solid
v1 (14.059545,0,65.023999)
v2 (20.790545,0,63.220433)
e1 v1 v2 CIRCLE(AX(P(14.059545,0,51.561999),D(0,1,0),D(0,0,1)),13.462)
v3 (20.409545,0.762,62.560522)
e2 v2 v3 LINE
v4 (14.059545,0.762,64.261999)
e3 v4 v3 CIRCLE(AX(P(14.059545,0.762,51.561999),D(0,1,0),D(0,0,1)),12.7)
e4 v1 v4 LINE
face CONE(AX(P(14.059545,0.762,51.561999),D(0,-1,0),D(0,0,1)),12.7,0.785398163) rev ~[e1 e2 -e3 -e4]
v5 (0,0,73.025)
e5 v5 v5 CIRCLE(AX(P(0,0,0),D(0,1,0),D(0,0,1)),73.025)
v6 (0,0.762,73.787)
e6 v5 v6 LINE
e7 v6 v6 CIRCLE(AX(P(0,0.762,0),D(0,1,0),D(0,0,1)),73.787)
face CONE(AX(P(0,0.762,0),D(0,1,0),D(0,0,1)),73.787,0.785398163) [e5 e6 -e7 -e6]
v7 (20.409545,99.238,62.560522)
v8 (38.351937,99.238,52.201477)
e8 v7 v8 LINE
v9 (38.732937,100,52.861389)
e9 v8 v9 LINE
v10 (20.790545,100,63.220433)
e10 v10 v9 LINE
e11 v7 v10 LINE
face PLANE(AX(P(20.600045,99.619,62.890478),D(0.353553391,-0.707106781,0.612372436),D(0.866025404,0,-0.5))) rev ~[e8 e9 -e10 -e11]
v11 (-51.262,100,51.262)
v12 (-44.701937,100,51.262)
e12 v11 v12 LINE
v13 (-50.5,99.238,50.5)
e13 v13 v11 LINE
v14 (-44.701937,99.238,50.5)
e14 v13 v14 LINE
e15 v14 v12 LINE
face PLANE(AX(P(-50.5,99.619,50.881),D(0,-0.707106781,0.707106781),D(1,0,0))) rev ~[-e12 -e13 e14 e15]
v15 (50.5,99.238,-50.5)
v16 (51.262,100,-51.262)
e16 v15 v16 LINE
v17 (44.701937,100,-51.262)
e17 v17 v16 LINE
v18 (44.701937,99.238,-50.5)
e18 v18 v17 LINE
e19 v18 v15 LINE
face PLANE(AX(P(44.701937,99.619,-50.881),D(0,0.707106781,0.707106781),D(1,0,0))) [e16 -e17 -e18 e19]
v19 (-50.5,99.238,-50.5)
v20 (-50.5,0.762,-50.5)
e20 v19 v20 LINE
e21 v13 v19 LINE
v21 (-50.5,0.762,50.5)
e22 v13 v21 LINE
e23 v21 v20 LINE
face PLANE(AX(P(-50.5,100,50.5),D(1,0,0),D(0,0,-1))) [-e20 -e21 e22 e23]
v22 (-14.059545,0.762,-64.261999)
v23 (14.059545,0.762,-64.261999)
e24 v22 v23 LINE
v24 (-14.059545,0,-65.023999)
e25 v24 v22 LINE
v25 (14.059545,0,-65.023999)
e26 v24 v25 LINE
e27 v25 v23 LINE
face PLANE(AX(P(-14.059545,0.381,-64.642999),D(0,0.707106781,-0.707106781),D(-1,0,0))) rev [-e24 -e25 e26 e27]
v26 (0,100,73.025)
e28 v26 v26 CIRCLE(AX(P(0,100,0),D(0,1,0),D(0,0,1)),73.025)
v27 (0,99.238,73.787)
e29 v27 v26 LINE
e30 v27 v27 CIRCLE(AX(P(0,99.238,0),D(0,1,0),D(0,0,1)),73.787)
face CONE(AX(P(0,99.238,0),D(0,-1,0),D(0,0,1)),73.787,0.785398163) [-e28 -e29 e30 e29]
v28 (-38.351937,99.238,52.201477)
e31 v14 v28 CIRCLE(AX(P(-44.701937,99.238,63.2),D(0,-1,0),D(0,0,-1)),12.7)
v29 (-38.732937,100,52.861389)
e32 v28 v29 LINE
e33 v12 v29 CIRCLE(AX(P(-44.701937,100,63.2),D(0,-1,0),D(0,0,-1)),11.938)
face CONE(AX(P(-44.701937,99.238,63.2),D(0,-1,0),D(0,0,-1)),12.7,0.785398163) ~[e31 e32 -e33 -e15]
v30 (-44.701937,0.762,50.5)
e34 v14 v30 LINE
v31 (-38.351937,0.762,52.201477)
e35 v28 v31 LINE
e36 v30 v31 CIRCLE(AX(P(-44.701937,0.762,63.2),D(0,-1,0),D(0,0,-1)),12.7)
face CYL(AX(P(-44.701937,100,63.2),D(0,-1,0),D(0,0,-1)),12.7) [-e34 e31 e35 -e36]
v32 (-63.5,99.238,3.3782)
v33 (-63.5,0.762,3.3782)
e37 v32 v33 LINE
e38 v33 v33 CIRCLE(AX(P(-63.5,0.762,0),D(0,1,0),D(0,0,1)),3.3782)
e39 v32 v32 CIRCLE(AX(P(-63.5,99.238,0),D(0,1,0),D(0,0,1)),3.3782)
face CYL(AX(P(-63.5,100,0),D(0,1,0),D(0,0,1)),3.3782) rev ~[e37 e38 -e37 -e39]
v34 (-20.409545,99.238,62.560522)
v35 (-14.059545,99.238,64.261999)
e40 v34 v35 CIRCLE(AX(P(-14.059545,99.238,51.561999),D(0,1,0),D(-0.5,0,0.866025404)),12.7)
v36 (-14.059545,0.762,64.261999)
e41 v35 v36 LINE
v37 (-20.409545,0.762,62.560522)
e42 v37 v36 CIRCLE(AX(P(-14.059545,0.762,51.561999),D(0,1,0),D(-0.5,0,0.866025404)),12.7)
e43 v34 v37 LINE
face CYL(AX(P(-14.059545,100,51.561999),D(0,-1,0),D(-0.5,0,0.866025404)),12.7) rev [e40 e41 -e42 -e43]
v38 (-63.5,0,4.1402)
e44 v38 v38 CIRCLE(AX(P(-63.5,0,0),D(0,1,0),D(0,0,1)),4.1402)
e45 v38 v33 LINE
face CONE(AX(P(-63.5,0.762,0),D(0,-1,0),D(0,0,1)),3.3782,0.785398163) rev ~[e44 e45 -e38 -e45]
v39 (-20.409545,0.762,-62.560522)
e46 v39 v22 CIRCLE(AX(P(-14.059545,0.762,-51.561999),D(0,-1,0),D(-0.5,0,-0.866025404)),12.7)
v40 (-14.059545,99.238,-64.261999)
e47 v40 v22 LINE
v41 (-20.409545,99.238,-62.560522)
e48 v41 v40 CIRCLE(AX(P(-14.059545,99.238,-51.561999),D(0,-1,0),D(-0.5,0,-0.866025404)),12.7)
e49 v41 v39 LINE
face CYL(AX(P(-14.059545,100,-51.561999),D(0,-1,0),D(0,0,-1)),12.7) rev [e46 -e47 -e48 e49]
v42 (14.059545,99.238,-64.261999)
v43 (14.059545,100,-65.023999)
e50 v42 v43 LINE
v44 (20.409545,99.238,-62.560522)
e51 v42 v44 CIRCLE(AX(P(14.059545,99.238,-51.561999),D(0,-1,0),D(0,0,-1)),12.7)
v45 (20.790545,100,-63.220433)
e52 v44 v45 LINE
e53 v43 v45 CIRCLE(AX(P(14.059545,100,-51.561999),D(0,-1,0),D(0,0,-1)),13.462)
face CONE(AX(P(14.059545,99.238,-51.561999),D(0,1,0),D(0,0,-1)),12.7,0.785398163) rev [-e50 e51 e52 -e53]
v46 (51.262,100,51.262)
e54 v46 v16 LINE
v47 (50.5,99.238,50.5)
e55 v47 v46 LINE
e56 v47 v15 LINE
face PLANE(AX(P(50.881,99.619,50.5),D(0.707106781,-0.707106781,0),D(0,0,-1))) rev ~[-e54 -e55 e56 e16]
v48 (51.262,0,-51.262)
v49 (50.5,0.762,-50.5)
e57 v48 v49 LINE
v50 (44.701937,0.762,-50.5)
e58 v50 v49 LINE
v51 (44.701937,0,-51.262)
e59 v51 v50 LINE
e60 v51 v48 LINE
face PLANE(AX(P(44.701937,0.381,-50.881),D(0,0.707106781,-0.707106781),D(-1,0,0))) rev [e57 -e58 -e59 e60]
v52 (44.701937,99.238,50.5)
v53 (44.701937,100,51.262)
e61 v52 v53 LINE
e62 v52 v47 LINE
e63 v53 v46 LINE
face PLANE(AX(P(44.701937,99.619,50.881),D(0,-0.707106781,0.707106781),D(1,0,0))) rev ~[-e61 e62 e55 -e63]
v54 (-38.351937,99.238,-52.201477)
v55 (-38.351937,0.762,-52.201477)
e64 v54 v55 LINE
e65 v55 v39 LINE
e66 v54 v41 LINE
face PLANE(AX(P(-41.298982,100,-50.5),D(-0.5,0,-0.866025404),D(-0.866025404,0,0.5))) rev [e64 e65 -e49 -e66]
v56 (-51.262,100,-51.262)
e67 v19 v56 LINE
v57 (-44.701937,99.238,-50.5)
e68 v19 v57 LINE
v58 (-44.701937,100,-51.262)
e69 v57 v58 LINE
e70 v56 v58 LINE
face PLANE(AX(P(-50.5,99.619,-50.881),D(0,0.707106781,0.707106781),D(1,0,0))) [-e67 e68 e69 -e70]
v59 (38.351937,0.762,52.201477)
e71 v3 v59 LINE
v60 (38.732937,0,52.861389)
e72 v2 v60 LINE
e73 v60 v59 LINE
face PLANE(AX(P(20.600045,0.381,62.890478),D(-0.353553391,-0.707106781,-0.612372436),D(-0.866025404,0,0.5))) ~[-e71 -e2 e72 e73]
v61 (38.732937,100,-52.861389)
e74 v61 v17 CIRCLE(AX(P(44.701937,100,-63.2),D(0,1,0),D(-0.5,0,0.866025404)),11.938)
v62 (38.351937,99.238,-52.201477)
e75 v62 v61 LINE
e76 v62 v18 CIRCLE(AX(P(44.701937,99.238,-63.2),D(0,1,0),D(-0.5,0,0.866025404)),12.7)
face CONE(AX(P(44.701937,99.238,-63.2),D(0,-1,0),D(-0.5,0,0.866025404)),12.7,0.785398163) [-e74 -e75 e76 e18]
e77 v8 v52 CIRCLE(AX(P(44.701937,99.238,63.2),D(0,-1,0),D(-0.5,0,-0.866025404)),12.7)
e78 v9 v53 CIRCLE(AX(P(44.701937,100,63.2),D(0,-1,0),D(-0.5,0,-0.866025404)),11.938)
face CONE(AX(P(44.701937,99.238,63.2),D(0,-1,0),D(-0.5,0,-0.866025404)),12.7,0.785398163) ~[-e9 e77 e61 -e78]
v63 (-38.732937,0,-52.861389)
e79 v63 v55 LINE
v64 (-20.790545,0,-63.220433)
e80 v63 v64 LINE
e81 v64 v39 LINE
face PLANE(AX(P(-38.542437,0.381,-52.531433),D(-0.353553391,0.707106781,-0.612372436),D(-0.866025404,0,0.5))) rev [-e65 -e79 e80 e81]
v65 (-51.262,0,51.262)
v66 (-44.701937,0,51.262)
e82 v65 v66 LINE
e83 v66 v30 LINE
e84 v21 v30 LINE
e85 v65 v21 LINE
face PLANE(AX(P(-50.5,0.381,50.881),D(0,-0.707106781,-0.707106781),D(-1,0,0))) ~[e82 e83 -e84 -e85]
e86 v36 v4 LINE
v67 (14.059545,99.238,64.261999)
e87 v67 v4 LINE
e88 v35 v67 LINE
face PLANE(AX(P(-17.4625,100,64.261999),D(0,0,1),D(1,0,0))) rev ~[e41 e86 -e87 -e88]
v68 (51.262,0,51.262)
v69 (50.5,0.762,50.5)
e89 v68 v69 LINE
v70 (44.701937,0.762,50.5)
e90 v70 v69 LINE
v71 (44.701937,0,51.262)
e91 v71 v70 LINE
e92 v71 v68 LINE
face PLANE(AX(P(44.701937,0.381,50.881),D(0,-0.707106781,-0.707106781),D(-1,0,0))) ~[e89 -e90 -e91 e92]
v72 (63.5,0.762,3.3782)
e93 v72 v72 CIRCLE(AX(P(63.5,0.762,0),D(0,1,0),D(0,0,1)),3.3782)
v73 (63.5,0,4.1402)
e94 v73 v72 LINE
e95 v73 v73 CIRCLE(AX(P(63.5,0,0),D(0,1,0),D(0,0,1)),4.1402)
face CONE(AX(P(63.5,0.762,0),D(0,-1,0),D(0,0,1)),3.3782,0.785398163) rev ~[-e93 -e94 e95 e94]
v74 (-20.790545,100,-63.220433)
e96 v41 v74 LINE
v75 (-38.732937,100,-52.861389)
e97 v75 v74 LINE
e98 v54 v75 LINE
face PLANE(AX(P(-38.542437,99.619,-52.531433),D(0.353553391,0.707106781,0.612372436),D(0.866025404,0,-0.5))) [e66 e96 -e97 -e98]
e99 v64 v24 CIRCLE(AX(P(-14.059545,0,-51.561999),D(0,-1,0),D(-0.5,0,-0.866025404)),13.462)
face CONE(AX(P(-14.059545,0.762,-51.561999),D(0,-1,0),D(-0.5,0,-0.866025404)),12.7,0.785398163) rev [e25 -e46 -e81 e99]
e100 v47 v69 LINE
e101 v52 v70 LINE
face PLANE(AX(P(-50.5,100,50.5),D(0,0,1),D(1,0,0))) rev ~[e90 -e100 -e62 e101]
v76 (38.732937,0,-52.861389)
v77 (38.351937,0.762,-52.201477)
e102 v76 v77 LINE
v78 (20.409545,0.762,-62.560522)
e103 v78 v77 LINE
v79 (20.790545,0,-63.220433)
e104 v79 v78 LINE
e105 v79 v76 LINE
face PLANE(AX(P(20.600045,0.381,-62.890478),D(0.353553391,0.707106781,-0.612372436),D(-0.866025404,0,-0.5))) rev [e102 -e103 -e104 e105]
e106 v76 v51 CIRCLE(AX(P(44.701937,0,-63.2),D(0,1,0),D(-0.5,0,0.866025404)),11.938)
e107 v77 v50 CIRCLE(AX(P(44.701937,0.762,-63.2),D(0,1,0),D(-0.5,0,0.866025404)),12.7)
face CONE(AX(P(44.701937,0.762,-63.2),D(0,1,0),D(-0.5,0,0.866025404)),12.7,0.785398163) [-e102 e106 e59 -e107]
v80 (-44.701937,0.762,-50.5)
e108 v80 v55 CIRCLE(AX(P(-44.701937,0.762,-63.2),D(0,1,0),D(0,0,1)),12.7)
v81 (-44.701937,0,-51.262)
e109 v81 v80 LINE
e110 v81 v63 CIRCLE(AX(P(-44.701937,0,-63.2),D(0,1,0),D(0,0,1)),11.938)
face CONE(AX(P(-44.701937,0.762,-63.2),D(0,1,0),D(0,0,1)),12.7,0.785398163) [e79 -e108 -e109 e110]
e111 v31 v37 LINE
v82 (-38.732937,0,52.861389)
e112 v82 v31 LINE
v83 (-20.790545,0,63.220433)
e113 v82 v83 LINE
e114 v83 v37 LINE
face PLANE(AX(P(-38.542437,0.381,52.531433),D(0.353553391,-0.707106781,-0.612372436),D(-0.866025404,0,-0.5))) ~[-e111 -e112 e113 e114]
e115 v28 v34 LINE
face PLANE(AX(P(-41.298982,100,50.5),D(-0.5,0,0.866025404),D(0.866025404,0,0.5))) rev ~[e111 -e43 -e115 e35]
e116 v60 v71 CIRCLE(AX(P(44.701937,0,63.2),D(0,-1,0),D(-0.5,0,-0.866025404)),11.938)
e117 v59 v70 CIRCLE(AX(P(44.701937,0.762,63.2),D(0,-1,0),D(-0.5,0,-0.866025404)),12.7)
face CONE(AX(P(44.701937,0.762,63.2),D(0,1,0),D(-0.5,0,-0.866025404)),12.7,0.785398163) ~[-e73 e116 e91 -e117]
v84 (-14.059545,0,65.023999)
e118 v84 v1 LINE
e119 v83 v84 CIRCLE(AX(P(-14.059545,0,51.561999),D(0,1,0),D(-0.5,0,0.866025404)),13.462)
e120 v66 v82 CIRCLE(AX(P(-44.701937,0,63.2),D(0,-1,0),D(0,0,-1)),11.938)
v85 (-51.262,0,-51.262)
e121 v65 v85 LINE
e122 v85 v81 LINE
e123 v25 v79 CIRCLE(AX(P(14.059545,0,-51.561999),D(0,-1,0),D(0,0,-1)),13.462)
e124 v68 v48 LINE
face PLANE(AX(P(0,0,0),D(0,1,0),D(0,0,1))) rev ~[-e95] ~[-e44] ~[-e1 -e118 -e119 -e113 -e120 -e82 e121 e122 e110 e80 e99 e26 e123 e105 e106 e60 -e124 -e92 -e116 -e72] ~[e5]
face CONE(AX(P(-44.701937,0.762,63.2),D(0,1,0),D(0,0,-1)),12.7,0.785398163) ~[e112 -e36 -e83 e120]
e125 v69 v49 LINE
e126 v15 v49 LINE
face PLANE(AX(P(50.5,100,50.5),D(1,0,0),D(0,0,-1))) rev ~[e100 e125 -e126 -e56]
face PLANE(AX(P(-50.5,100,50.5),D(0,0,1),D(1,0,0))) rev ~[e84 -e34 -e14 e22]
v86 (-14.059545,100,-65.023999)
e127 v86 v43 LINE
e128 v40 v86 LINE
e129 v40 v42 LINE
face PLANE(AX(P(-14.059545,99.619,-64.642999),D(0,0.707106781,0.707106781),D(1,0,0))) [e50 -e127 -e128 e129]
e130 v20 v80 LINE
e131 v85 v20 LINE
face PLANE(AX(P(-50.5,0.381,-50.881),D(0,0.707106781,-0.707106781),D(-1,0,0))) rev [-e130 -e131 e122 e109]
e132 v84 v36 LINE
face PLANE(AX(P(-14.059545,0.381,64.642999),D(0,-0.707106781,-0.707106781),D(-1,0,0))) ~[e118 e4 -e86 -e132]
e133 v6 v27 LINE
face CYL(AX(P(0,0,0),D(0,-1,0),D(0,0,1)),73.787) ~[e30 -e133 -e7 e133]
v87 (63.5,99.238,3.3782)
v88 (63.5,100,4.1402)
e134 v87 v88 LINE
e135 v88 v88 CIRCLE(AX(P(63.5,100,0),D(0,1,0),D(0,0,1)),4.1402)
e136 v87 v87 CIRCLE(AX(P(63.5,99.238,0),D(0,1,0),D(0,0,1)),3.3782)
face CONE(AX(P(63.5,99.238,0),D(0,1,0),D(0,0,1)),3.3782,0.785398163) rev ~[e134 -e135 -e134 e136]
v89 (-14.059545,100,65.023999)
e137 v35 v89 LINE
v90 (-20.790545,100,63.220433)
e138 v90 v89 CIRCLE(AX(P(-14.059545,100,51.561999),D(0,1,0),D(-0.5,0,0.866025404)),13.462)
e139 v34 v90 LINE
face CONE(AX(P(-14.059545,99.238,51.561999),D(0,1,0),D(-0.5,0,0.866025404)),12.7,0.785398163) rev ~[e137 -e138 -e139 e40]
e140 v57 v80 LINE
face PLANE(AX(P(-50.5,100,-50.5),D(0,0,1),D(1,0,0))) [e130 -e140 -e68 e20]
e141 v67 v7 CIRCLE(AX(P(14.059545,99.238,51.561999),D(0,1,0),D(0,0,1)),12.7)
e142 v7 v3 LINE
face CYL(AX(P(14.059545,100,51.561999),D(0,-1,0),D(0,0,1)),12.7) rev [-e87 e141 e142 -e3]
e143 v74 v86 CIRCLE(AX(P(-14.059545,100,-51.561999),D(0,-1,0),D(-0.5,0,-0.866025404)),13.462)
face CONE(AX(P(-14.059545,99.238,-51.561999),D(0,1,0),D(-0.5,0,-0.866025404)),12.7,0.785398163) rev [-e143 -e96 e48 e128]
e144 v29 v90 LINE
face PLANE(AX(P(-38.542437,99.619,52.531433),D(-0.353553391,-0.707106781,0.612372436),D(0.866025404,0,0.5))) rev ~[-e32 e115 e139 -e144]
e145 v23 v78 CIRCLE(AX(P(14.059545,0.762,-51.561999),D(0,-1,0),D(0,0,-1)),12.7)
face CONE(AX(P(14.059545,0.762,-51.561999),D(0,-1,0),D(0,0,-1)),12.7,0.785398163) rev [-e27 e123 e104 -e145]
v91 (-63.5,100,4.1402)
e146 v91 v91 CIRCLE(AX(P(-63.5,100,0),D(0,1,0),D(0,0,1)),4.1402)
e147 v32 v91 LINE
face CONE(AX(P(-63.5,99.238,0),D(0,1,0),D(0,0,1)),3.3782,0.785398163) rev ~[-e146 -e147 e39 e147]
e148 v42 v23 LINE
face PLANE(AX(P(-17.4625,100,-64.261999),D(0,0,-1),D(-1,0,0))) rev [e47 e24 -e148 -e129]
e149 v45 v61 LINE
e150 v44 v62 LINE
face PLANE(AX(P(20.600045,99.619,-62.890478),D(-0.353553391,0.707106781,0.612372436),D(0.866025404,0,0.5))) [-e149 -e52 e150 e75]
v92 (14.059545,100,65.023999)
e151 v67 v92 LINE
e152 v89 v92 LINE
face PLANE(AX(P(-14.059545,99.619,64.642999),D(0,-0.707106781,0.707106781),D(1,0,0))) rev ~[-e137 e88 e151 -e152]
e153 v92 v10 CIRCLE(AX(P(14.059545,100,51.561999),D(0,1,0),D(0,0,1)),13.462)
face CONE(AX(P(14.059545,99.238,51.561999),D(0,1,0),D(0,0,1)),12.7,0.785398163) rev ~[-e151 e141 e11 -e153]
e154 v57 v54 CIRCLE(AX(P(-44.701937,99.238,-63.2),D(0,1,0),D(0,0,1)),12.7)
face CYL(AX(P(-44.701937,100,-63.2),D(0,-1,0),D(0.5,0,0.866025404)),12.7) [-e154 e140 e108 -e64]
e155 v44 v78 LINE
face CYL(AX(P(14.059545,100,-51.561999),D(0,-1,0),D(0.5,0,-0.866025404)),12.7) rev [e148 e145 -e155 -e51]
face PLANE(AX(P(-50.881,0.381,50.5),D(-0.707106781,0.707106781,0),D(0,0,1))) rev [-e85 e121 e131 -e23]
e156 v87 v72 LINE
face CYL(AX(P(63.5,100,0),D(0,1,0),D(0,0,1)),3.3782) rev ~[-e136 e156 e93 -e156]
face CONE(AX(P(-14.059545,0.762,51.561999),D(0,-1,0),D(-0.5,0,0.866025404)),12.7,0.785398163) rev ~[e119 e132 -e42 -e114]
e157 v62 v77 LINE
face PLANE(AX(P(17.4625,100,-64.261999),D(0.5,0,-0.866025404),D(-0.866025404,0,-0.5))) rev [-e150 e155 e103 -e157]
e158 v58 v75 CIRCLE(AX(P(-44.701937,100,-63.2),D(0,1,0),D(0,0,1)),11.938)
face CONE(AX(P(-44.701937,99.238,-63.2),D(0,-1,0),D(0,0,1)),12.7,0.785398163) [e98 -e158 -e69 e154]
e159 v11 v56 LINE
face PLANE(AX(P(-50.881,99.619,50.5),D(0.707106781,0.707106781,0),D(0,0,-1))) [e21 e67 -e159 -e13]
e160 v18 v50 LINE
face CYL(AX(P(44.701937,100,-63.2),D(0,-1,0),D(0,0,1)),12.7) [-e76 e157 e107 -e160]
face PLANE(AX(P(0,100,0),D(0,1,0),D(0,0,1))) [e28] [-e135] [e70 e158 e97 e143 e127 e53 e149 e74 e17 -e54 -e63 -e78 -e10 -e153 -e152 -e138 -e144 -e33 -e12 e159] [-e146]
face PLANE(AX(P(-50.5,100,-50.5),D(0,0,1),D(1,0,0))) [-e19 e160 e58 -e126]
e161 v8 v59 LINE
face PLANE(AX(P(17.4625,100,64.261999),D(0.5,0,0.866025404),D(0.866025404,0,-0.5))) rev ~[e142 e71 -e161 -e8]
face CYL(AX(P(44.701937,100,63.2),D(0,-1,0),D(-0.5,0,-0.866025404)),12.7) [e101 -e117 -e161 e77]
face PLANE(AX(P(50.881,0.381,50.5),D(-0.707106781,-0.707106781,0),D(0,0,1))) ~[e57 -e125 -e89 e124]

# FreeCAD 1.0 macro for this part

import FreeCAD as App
import Part
import Sketcher
from FreeCAD import Vector
Q = App.Units.Quantity


def edges_at(feature, points):
    """Names of the edges that pass closest to the given points."""
    edges = feature.Shape.Edges
    near = lambda p: min(range(len(edges)), key=lambda i: edges[i].distToShape(Part.Vertex(*p))[0])
    return sorted({f"Edge{near(p) + 1}" for p in points})

doc = App.newDocument("Part")
body = doc.addObject("PartDesign::Body", "Body")

sketch1 = body.newObject("Sketcher::SketchObject", "Sketch")
sketch1.AttachmentSupport = (doc.getObject("XZ_Plane"), [""])
sketch1.MapMode = "FlatFace"
sketch1.addGeometry(Part.Circle(Vector(0, 0, 0), Vector(0, 0, 1), 73.787), False)
sketch1.addConstraint(Sketcher.Constraint("Coincident", 0, 3, -1, 1))
sketch1.addConstraint(Sketcher.Constraint("Diameter", 0, Q("5.81 in")))
pad1 = body.newObject("PartDesign::Pad", "Pad")
pad1.Profile = sketch1
pad1.Length = 100
pad1.Reversed = True

sketch2 = body.newObject("Sketcher::SketchObject", "Sketch001")
sketch2.AttachmentSupport = (doc.getObject("XZ_Plane"), [""])
sketch2.MapMode = "FlatFace"
sketch2.AttachmentOffset = App.Placement(Vector(0, 0, -100), App.Rotation())
sketch2.addGeometry(Part.LineSegment(Vector(-50.5, -50.5, 0), Vector(-50.5, 50.5, 0)), False)
sketch2.addGeometry(Part.LineSegment(Vector(-50.5, 50.5, 0), Vector(50.5, 50.5, 0)), False)
sketch2.addGeometry(Part.LineSegment(Vector(50.5, 50.5, 0), Vector(50.5, -50.5, 0)), False)
sketch2.addGeometry(Part.LineSegment(Vector(50.5, -50.5, 0), Vector(-50.5, -50.5, 0)), False)
sketch2.addConstraint(Sketcher.Constraint("Coincident", 0, 2, 1, 1))
sketch2.addConstraint(Sketcher.Constraint("Coincident", 1, 2, 2, 1))
sketch2.addConstraint(Sketcher.Constraint("Coincident", 2, 2, 3, 1))
sketch2.addConstraint(Sketcher.Constraint("Coincident", 3, 2, 0, 1))
sketch2.addConstraint(Sketcher.Constraint("Vertical", 0))
sketch2.addConstraint(Sketcher.Constraint("Horizontal", 1))
sketch2.addConstraint(Sketcher.Constraint("Vertical", 2))
sketch2.addConstraint(Sketcher.Constraint("Horizontal", 3))
sketch2.addConstraint(Sketcher.Constraint("Symmetric", 0, 2, 2, 2, -1, 1))
sketch2.addConstraint(Sketcher.Constraint("Equal", 3, 0))
sketch2.addConstraint(Sketcher.Constraint("DistanceX", 1, 1, 1, 2, 101.0))
pocket1 = body.newObject("PartDesign::Pocket", "Pocket")
pocket1.Profile = sketch2
pocket1.Type = "ThroughAll"
pocket1.Reversed = True

sketch3 = body.newObject("Sketcher::SketchObject", "Sketch002")
sketch3.AttachmentSupport = (doc.getObject("XZ_Plane"), [""])
sketch3.MapMode = "FlatFace"
sketch3.AttachmentOffset = App.Placement(Vector(0, 0, -100), App.Rotation())
sketch3.addGeometry(Part.LineSegment(Vector(-17.4625, 64.261999, 0), Vector(17.4625, 64.261999, 0)), False)
sketch3.addGeometry(Part.LineSegment(Vector(17.4625, 64.261999, 0), Vector(41.298982, 50.5, 0)), False)
sketch3.addGeometry(Part.LineSegment(Vector(41.298982, 50.5, 0), Vector(-41.298982, 50.5, 0)), False)
sketch3.addGeometry(Part.LineSegment(Vector(-41.298982, 50.5, 0), Vector(-17.4625, 64.261999, 0)), False)
sketch3.addConstraint(Sketcher.Constraint("Coincident", 0, 2, 1, 1))
sketch3.addConstraint(Sketcher.Constraint("Coincident", 1, 2, 2, 1))
sketch3.addConstraint(Sketcher.Constraint("Coincident", 2, 2, 3, 1))
sketch3.addConstraint(Sketcher.Constraint("Coincident", 3, 2, 0, 1))
sketch3.addConstraint(Sketcher.Constraint("Horizontal", 0))
sketch3.addConstraint(Sketcher.Constraint("Horizontal", 2))
sketch3.addConstraint(Sketcher.Constraint("Equal", 1, 3))
sketch3.addConstraint(Sketcher.Constraint("Angle", 1, Q("-30 deg")))
sketch3.addConstraint(Sketcher.Constraint("DistanceX", 0, 1, 0, 2, Q("1.375 in")))
sketch3.addConstraint(Sketcher.Constraint("DistanceY", -1, 1, 0, 2, Q("2.53 in")))
sketch3.addConstraint(Sketcher.Constraint("DistanceX", -1, 1, 0, 2, Q("0.6875 in")))
sketch3.addConstraint(Sketcher.Constraint("Distance", 1, 27.523999))
pocket2 = body.newObject("PartDesign::Pocket", "Pocket001")
pocket2.Profile = sketch3
pocket2.Type = "ThroughAll"
pocket2.Reversed = True
doc.recompute()

mirrored = body.newObject("PartDesign::Mirrored", "Mirrored")
mirrored.Originals = [pocket2]
mirrored.MirrorPlane = (doc.getObject("XY_Plane"), [""])
body.Tip = mirrored
doc.recompute()

fillet = body.newObject("PartDesign::Fillet", "Fillet")
fillet.Base = (mirrored, edges_at(mirrored, [
    (-17.462, 50, 64.262),
    (-41.299, 50, 50.5),
    (41.299, 50, 50.5),
    (17.462, 50, 64.262),
    (-41.299, 50, -50.5),
    (-17.462, 50, -64.262),
    (17.462, 50, -64.262),
    (41.299, 50, -50.5),
]))
fillet.Radius = Q("0.5 in")

sketch4 = body.newObject("Sketcher::SketchObject", "Sketch003")
sketch4.AttachmentSupport = (doc.getObject("XZ_Plane"), [""])
sketch4.MapMode = "FlatFace"
sketch4.AttachmentOffset = App.Placement(Vector(0, 0, -100), App.Rotation())
sketch4.addGeometry(Part.Circle(Vector(-63.5, 0, 0), Vector(0, 0, 1), 3.3782), False)
sketch4.addGeometry(Part.Circle(Vector(63.5, 0, 0), Vector(0, 0, 1), 3.3782), False)
sketch4.addConstraint(Sketcher.Constraint("Equal", 0, 1))
sketch4.addConstraint(Sketcher.Constraint("Symmetric", 0, 3, 1, 3, -1, 1))
sketch4.addConstraint(Sketcher.Constraint("PointOnObject", 0, 3, -1))
sketch4.addConstraint(Sketcher.Constraint("Diameter", 0, Q("0.266 in")))
sketch4.addConstraint(Sketcher.Constraint("DistanceX", 0, 3, 1, 3, Q("5 in")))
pocket3 = body.newObject("PartDesign::Pocket", "Pocket002")
pocket3.Profile = sketch4
pocket3.Type = "ThroughAll"
pocket3.Reversed = True
doc.recompute()

chamfer = body.newObject("PartDesign::Chamfer", "Chamfer")
chamfer.Base = (pocket3, edges_at(pocket3, [
    (50.5, 0, 0),
    (-47.601, 0, 50.5),
    (-50.5, 0, 0),
    (47.601, 0, -50.5),
    (50.5, 100, 0),
    (-63.5, 0, -3.378),
    (-63.5, 100, -3.378),
    (63.5, 0, -3.378),
    (47.601, 100, -50.5),
    (63.5, 100, -3.378),
    (-50.5, 100, 0),
    (-47.601, 100, 50.5),
    (0, 0, -73.787),
    (0, 100, -73.787),
    (29.381, 100, 57.381),
    (29.381, 0, 57.381),
    (0, 100, 64.262),
    (0, 0, 64.262),
    (47.601, 0, 50.5),
    (47.601, 100, 50.5),
    (-47.601, 100, -50.5),
    (-29.381, 100, -57.381),
    (0, 100, -64.262),
    (29.381, 100, -57.381),
    (-29.381, 100, 57.381),
    (-41.415, 100, -50.933),
    (41.415, 100, -50.933),
    (-41.415, 100, 50.933),
    (41.415, 100, 50.933),
    (-29.381, 0, -57.381),
    (-47.601, 0, -50.5),
    (-29.381, 0, 57.381),
    (29.381, 0, -57.381),
    (0, 0, -64.262),
    (-41.415, 0, -50.933),
    (41.415, 0, -50.933),
    (-41.415, 0, 50.933),
    (41.415, 0, 50.933),
    (17.347, 100, 63.829),
    (17.347, 0, 63.829),
    (-17.347, 100, 63.829),
    (-17.347, 0, 63.829),
    (17.347, 100, -63.829),
    (17.347, 0, -63.829),
    (-17.347, 100, -63.829),
    (-17.347, 0, -63.829),
]))
chamfer.Size = Q("0.03 in")

doc.recompute()
